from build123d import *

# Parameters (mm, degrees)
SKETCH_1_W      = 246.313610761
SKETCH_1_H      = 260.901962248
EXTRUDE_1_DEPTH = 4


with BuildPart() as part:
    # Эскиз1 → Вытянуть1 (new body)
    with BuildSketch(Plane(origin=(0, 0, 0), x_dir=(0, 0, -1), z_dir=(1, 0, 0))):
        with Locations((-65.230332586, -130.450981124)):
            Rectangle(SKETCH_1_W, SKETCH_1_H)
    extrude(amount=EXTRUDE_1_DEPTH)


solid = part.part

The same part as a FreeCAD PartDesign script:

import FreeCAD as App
import Part
import Sketcher


def add_polygon(sketch, points):
    """Adds a closed chain of lines whose ends are joined by coincident constraints."""
    first, n = sketch.GeometryCount, len(points)
    for a, b in zip(points, points[1:] + points[:1]):
        sketch.addGeometry(Part.LineSegment(App.Vector(*a, 0), App.Vector(*b, 0)), False)
    for i in range(n):
        sketch.addConstraint(Sketcher.Constraint("Coincident", first + i, 2, first + (i + 1) % n, 1))

doc = App.newDocument("Part")
params = doc.addObject("Spreadsheet::Sheet", "Params")
for row, (alias, value) in enumerate([
    ("pad1_length", "4 mm"),
], start=1):
    params.set(f"A{row}", alias)
    params.set(f"B{row}", "=" + value)
    params.setAlias(f"B{row}", alias)

body = doc.addObject("PartDesign::Body", "Body")

# Sketch on YZ plane
sketch1 = body.newObject("Sketcher::SketchObject", "Sketch")
sketch1.AttachmentSupport = (doc.getObject("YZ_Plane"), [""])
sketch1.MapMode = "FlatFace"
add_polygon(sketch1, [(0, 188), (-261, 188), (-261, -58), (0, -58)])  # lines 0-3
sketch1.addConstraint(Sketcher.Constraint("Horizontal", 0))
sketch1.addConstraint(Sketcher.Constraint("Vertical", 1))
sketch1.addConstraint(Sketcher.Constraint("Horizontal", 2))
sketch1.addConstraint(Sketcher.Constraint("Vertical", 3))
sketch1.addConstraint(Sketcher.Constraint("PointOnObject", 2, 2, -2))
sketch1.addConstraint(Sketcher.Constraint("DistanceY", 1, 2, 1, 1, 246.313611))
sketch1.addConstraint(Sketcher.Constraint("DistanceX", 0, 2, 0, 1, 260.901962))
sketch1.addConstraint(Sketcher.Constraint("DistanceY", -1, 1, 0, 2, 188.387138))
pad1 = body.newObject("PartDesign::Pad", "Pad")
pad1.Profile = sketch1
pad1.setExpression("Length", "Params.pad1_length")

doc.recompute()
